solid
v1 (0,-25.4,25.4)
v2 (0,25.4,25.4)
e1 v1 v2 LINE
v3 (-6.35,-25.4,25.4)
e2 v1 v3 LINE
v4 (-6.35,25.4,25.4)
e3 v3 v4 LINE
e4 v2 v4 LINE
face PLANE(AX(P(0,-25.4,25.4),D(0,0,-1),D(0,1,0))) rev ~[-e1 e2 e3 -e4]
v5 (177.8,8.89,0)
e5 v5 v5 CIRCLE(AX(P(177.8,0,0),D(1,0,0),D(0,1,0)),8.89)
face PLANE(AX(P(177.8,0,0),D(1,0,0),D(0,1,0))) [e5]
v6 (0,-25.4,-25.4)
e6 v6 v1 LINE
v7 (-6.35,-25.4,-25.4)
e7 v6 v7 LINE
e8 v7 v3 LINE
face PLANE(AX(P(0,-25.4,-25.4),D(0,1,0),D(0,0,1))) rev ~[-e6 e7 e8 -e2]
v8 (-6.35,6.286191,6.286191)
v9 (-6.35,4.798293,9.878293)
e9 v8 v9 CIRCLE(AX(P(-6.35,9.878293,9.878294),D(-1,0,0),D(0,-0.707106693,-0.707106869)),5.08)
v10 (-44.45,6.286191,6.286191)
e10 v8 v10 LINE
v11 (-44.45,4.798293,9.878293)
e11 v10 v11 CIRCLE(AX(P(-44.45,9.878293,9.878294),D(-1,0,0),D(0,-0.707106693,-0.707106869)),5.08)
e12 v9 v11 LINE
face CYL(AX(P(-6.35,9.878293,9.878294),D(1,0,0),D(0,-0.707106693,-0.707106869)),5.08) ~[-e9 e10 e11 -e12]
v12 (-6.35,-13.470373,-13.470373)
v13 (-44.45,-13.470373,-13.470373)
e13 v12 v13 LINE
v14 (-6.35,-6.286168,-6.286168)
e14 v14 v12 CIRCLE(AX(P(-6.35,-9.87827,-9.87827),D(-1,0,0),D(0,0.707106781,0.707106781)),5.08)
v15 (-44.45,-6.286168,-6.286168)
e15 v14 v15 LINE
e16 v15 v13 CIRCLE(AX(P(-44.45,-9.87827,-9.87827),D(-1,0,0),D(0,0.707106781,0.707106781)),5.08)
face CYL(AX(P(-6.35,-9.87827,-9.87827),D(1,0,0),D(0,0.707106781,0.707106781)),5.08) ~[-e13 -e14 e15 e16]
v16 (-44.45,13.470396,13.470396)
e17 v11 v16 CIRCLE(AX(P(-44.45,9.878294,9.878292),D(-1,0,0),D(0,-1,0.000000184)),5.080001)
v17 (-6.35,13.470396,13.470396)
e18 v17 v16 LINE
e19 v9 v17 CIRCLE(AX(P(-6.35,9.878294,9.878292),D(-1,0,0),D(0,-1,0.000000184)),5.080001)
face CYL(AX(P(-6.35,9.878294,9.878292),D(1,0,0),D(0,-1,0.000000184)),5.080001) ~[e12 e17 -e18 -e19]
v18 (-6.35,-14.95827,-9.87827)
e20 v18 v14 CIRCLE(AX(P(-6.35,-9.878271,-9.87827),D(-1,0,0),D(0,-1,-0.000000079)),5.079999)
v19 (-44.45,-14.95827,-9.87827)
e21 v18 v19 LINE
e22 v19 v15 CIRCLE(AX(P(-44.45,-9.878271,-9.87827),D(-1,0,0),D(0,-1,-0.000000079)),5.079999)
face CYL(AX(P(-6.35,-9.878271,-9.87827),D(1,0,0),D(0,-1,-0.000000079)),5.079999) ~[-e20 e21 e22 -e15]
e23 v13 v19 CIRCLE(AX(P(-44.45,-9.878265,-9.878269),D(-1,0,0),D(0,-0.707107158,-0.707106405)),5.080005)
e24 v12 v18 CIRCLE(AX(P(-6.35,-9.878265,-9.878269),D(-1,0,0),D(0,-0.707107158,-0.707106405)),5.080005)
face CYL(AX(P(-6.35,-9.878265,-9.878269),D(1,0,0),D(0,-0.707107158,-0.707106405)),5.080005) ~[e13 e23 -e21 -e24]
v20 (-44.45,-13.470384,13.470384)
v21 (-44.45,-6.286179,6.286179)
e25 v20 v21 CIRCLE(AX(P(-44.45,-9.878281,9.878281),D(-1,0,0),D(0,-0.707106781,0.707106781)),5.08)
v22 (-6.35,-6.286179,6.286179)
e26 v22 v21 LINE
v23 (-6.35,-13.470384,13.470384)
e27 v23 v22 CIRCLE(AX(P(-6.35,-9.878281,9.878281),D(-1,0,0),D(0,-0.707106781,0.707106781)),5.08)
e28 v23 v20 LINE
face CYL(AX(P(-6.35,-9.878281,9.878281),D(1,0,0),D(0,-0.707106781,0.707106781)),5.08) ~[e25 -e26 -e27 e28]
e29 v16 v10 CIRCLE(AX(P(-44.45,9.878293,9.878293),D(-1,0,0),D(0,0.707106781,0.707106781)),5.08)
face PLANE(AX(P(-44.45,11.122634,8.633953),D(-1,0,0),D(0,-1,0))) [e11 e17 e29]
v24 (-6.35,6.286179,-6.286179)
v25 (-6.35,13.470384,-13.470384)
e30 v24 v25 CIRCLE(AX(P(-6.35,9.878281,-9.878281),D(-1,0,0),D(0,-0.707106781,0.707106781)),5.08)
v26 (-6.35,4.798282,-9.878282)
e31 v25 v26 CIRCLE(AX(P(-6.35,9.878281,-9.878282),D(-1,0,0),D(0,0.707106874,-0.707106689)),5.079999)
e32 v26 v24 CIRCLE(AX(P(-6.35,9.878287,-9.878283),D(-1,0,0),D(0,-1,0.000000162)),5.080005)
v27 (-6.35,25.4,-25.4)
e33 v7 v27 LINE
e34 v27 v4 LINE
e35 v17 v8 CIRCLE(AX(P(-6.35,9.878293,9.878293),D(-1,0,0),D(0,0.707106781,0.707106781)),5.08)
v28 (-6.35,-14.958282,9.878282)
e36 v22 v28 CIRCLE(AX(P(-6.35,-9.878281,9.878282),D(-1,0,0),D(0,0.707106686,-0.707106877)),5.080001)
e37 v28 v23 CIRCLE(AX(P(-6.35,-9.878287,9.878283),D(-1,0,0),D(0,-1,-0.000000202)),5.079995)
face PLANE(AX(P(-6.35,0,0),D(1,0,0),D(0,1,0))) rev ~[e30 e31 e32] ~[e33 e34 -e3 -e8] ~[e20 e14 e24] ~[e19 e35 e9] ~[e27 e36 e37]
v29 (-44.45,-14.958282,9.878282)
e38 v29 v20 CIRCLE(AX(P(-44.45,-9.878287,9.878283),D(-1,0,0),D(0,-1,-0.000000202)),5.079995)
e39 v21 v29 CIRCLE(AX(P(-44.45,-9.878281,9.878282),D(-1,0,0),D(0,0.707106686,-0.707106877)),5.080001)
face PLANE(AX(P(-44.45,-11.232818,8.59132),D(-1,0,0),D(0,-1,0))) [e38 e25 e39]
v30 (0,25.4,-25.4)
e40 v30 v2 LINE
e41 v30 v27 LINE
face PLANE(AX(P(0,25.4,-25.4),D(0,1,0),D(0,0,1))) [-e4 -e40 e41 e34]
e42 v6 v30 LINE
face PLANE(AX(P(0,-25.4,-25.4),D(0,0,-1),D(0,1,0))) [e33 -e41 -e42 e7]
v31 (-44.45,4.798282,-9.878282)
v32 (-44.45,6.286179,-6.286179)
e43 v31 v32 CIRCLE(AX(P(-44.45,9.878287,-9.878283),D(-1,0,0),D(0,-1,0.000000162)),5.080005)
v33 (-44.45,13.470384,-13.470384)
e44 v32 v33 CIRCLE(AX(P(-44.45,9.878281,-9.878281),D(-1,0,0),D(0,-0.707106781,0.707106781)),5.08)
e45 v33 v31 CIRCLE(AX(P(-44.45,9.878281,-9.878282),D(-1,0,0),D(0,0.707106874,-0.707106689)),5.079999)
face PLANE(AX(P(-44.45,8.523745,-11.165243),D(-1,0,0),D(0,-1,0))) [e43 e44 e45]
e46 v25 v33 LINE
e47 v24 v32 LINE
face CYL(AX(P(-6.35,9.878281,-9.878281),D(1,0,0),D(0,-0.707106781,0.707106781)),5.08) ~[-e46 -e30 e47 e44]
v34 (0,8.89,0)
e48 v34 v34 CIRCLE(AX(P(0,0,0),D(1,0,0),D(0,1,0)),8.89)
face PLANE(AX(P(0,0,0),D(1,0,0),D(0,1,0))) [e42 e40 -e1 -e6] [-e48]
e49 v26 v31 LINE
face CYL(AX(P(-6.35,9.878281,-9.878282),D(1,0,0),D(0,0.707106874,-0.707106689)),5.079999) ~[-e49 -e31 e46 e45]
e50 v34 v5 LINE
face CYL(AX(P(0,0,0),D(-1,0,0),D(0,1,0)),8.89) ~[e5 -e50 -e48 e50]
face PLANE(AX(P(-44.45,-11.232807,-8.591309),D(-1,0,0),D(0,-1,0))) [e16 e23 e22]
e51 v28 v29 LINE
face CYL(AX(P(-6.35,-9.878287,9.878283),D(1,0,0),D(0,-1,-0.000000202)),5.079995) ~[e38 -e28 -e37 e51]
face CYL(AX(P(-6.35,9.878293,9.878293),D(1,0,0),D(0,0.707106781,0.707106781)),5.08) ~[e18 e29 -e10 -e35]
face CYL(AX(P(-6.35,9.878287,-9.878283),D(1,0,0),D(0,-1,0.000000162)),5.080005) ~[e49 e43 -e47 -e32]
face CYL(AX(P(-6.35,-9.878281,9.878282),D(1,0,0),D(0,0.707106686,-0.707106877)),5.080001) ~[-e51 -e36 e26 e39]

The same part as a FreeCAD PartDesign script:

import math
import FreeCAD as App
import Part
import Sketcher

V = App.Vector
Q = App.Units.Quantity

doc = App.newDocument("Part")
params = doc.addObject("Spreadsheet::Sheet", "Params")
for row, (alias, value) in enumerate([
    ("sketch1_diameter", "0.7 in"),
    ("pad1_length", "7 in"),
    ("sketch2_width", "2 in"),
    ("pad2_length", "0.25 in"),
    ("sketch3_radius", "0.2 in"),
    ("pad3_length", "1.5 in"),
], start=1):
    params.set(f"A{row}", alias)
    params.set(f"B{row}", "=" + value)
    params.setAlias(f"B{row}", alias)

body = doc.addObject("PartDesign::Body", "Body")

# Sketch on YZ plane
sketch1 = body.newObject("Sketcher::SketchObject", "Sketch")
sketch1.AttachmentSupport = (doc.getObject("YZ_Plane"), [""])
sketch1.MapMode = "FlatFace"
sketch1.addGeometry(Part.Circle(V(0, 0, 0), V(0, 0, 1), 9), False)
sketch1.addConstraint([
    Sketcher.Constraint("Coincident", 0, 3, -1, 1),
    Sketcher.Constraint("Diameter", 0, Q("0.7 in")),
])
sketch1.setExpression("Constraints[1]", "Params.sketch1_diameter")
pad1 = body.newObject("PartDesign::Pad", "Pad")
pad1.Profile = sketch1
pad1.setExpression("Length", "Params.pad1_length")

# Sketch on YZ plane
sketch2 = body.newObject("Sketcher::SketchObject", "Sketch001")
sketch2.AttachmentSupport = (doc.getObject("YZ_Plane"), [""])
sketch2.MapMode = "FlatFace"
sketch2.addGeometry([
    Part.LineSegment(V(-25, 25, 0), V(-25, -25, 0)),
    Part.LineSegment(V(-25, -25, 0), V(25, -25, 0)),
    Part.LineSegment(V(25, -25, 0), V(25, 25, 0)),
    Part.LineSegment(V(25, 25, 0), V(-25, 25, 0)),
], False)
sketch2.addConstraint([
    Sketcher.Constraint("Coincident", 0, 2, 1, 1),
    Sketcher.Constraint("Coincident", 1, 2, 2, 1),
    Sketcher.Constraint("Coincident", 2, 2, 3, 1),
    Sketcher.Constraint("Coincident", 3, 2, 0, 1),
    Sketcher.Constraint("Vertical", 0),
    Sketcher.Constraint("Horizontal", 1),
    Sketcher.Constraint("Vertical", 2),
    Sketcher.Constraint("Horizontal", 3),
    Sketcher.Constraint("Symmetric", 0, 2, 2, 2, -1, 1),
    Sketcher.Constraint("Equal", 3, 0),
    Sketcher.Constraint("DistanceX", 1, 1, 1, 2, Q("2 in")),
])
sketch2.setExpression("Constraints[10]", "Params.sketch2_width")
pad2 = body.newObject("PartDesign::Pad", "Pad001")
pad2.Profile = sketch2
pad2.setExpression("Length", "Params.pad2_length")
pad2.Reversed = True

# Sketch on YZ plane
sketch3 = body.newObject("Sketcher::SketchObject", "Sketch002")
sketch3.AttachmentSupport = (doc.getObject("YZ_Plane"), [""])
sketch3.MapMode = "FlatFace"
sketch3.AttachmentOffset = App.Placement(V(0, 0, -0.25 * 25.4), App.Rotation())
sketch3.addGeometry([
    Part.ArcOfCircle(Part.Circle(V(-9.9, 9.9, 0), V(0, 0, 1), 5.1), math.radians(-180), math.radians(-45)),  # 0
    Part.ArcOfCircle(Part.Circle(V(-9.9, 9.9, 0), V(0, 0, 1), 5.1), math.radians(135), math.radians(180)),  # 1
    Part.ArcOfCircle(Part.Circle(V(-9.9, 9.9, 0), V(0, 0, 1), 5.1), math.radians(-45), math.radians(135)),  # 2
    Part.ArcOfCircle(Part.Circle(V(-9.9, -9.9, 0), V(0, 0, 1), 5.1), math.radians(45), math.radians(180)),  # 3
    Part.ArcOfCircle(Part.Circle(V(-9.9, -9.9, 0), V(0, 0, 1), 5.1), math.radians(-135), math.radians(45)),  # 4
    Part.ArcOfCircle(Part.Circle(V(-9.9, -9.9, 0), V(0, 0, 1), 5.1), math.radians(-180), math.radians(-135)),  # 5
    Part.ArcOfCircle(Part.Circle(V(9.9, -9.9, 0), V(0, 0, 1), 5.1), math.radians(135), math.radians(180)),  # 6
    Part.ArcOfCircle(Part.Circle(V(9.9, -9.9, 0), V(0, 0, 1), 5.1), math.radians(-45), math.radians(135)),  # 7
    Part.ArcOfCircle(Part.Circle(V(9.9, -9.9, 0), V(0, 0, 1), 5.1), math.radians(180), math.radians(315)),  # 8
    Part.ArcOfCircle(Part.Circle(V(9.9, 9.9, 0), V(0, 0, 1), 5.1), math.radians(-135), math.radians(45)),  # 9
    Part.ArcOfCircle(Part.Circle(V(9.9, 9.9, 0), V(0, 0, 1), 5.1), math.radians(-180), math.radians(-135)),  # 10
    Part.ArcOfCircle(Part.Circle(V(9.9, 9.9, 0), V(0, 0, 1), 5.1), math.radians(45), math.radians(180)),  # 11
], False)
sketch3.addConstraint([
    Sketcher.Constraint("Tangent", 0, 1, 1, 2),
    Sketcher.Constraint("Tangent", 1, 1, 2, 2),
    Sketcher.Constraint("Tangent", 2, 1, 0, 2),
    Sketcher.Constraint("Tangent", 3, 1, 4, 2),
    Sketcher.Constraint("Tangent", 4, 1, 5, 2),
    Sketcher.Constraint("Tangent", 5, 1, 3, 2),
    Sketcher.Constraint("Tangent", 6, 1, 7, 2),
    Sketcher.Constraint("Tangent", 7, 1, 8, 2),
    Sketcher.Constraint("Tangent", 8, 1, 6, 2),
    Sketcher.Constraint("Tangent", 9, 1, 10, 2),
    Sketcher.Constraint("Tangent", 10, 1, 11, 2),
    Sketcher.Constraint("Tangent", 11, 1, 9, 2),
    Sketcher.Constraint("Equal", 2, 3),
    Sketcher.Constraint("Equal", 5, 6),
    Sketcher.Constraint("Equal", 8, 9),
    Sketcher.Constraint("Symmetric", 0, 3, 6, 3, -1, 1),
    Sketcher.Constraint("Horizontal", 2, 3, 0, 1),
    Sketcher.Constraint("Horizontal", 4, 3, 5, 1),
    Sketcher.Constraint("Horizontal", 7, 3, 8, 1),
    Sketcher.Constraint("Horizontal", 11, 3, 10, 1),
    Sketcher.Constraint("Radius", 0, Q("0.2 in")),
    Sketcher.Constraint("DistanceX", 0, 1, 1, 1, 1.487898),
    Sketcher.Constraint("DistanceY", 5, 3, 3, 1, 3.592101),
    Sketcher.Constraint("DistanceY", 7, 1, 6, 3, 3.592101),
    Sketcher.Constraint("DistanceY", 9, 1, 11, 3, 3.592101),
    Sketcher.Constraint("DistanceX", 0, 3, -1, 1, 9.878281),
    Sketcher.Constraint("DistanceY", -1, 1, 2, 3, 9.878281),
    Sketcher.Constraint("DistanceX", 3, 3, -1, 1, 9.878271),
    Sketcher.Constraint("DistanceY", 3, 3, -1, 1, 9.87827),
    Sketcher.Constraint("DistanceX", 2, 1, -1, 1, 6.286179),
    Sketcher.Constraint("DistanceX", -1, 1, 6, 1, 6.286179),
    Sketcher.Constraint("DistanceX", -1, 1, 9, 1, 6.286191),
    Sketcher.Constraint("DistanceY", -1, 1, 9, 1, 6.286191),
    Sketcher.Constraint("DistanceY", 4, 1, 2, 1, 19.756552),
    Sketcher.Constraint("DistanceX", -1, 1, 11, 1, 13.470396),
])
sketch3.setExpression("Constraints[20]", "Params.sketch3_radius")
pad3 = body.newObject("PartDesign::Pad", "Pad002")
pad3.Profile = sketch3
pad3.setExpression("Length", "Params.pad3_length")
pad3.Reversed = True

doc.recompute()
